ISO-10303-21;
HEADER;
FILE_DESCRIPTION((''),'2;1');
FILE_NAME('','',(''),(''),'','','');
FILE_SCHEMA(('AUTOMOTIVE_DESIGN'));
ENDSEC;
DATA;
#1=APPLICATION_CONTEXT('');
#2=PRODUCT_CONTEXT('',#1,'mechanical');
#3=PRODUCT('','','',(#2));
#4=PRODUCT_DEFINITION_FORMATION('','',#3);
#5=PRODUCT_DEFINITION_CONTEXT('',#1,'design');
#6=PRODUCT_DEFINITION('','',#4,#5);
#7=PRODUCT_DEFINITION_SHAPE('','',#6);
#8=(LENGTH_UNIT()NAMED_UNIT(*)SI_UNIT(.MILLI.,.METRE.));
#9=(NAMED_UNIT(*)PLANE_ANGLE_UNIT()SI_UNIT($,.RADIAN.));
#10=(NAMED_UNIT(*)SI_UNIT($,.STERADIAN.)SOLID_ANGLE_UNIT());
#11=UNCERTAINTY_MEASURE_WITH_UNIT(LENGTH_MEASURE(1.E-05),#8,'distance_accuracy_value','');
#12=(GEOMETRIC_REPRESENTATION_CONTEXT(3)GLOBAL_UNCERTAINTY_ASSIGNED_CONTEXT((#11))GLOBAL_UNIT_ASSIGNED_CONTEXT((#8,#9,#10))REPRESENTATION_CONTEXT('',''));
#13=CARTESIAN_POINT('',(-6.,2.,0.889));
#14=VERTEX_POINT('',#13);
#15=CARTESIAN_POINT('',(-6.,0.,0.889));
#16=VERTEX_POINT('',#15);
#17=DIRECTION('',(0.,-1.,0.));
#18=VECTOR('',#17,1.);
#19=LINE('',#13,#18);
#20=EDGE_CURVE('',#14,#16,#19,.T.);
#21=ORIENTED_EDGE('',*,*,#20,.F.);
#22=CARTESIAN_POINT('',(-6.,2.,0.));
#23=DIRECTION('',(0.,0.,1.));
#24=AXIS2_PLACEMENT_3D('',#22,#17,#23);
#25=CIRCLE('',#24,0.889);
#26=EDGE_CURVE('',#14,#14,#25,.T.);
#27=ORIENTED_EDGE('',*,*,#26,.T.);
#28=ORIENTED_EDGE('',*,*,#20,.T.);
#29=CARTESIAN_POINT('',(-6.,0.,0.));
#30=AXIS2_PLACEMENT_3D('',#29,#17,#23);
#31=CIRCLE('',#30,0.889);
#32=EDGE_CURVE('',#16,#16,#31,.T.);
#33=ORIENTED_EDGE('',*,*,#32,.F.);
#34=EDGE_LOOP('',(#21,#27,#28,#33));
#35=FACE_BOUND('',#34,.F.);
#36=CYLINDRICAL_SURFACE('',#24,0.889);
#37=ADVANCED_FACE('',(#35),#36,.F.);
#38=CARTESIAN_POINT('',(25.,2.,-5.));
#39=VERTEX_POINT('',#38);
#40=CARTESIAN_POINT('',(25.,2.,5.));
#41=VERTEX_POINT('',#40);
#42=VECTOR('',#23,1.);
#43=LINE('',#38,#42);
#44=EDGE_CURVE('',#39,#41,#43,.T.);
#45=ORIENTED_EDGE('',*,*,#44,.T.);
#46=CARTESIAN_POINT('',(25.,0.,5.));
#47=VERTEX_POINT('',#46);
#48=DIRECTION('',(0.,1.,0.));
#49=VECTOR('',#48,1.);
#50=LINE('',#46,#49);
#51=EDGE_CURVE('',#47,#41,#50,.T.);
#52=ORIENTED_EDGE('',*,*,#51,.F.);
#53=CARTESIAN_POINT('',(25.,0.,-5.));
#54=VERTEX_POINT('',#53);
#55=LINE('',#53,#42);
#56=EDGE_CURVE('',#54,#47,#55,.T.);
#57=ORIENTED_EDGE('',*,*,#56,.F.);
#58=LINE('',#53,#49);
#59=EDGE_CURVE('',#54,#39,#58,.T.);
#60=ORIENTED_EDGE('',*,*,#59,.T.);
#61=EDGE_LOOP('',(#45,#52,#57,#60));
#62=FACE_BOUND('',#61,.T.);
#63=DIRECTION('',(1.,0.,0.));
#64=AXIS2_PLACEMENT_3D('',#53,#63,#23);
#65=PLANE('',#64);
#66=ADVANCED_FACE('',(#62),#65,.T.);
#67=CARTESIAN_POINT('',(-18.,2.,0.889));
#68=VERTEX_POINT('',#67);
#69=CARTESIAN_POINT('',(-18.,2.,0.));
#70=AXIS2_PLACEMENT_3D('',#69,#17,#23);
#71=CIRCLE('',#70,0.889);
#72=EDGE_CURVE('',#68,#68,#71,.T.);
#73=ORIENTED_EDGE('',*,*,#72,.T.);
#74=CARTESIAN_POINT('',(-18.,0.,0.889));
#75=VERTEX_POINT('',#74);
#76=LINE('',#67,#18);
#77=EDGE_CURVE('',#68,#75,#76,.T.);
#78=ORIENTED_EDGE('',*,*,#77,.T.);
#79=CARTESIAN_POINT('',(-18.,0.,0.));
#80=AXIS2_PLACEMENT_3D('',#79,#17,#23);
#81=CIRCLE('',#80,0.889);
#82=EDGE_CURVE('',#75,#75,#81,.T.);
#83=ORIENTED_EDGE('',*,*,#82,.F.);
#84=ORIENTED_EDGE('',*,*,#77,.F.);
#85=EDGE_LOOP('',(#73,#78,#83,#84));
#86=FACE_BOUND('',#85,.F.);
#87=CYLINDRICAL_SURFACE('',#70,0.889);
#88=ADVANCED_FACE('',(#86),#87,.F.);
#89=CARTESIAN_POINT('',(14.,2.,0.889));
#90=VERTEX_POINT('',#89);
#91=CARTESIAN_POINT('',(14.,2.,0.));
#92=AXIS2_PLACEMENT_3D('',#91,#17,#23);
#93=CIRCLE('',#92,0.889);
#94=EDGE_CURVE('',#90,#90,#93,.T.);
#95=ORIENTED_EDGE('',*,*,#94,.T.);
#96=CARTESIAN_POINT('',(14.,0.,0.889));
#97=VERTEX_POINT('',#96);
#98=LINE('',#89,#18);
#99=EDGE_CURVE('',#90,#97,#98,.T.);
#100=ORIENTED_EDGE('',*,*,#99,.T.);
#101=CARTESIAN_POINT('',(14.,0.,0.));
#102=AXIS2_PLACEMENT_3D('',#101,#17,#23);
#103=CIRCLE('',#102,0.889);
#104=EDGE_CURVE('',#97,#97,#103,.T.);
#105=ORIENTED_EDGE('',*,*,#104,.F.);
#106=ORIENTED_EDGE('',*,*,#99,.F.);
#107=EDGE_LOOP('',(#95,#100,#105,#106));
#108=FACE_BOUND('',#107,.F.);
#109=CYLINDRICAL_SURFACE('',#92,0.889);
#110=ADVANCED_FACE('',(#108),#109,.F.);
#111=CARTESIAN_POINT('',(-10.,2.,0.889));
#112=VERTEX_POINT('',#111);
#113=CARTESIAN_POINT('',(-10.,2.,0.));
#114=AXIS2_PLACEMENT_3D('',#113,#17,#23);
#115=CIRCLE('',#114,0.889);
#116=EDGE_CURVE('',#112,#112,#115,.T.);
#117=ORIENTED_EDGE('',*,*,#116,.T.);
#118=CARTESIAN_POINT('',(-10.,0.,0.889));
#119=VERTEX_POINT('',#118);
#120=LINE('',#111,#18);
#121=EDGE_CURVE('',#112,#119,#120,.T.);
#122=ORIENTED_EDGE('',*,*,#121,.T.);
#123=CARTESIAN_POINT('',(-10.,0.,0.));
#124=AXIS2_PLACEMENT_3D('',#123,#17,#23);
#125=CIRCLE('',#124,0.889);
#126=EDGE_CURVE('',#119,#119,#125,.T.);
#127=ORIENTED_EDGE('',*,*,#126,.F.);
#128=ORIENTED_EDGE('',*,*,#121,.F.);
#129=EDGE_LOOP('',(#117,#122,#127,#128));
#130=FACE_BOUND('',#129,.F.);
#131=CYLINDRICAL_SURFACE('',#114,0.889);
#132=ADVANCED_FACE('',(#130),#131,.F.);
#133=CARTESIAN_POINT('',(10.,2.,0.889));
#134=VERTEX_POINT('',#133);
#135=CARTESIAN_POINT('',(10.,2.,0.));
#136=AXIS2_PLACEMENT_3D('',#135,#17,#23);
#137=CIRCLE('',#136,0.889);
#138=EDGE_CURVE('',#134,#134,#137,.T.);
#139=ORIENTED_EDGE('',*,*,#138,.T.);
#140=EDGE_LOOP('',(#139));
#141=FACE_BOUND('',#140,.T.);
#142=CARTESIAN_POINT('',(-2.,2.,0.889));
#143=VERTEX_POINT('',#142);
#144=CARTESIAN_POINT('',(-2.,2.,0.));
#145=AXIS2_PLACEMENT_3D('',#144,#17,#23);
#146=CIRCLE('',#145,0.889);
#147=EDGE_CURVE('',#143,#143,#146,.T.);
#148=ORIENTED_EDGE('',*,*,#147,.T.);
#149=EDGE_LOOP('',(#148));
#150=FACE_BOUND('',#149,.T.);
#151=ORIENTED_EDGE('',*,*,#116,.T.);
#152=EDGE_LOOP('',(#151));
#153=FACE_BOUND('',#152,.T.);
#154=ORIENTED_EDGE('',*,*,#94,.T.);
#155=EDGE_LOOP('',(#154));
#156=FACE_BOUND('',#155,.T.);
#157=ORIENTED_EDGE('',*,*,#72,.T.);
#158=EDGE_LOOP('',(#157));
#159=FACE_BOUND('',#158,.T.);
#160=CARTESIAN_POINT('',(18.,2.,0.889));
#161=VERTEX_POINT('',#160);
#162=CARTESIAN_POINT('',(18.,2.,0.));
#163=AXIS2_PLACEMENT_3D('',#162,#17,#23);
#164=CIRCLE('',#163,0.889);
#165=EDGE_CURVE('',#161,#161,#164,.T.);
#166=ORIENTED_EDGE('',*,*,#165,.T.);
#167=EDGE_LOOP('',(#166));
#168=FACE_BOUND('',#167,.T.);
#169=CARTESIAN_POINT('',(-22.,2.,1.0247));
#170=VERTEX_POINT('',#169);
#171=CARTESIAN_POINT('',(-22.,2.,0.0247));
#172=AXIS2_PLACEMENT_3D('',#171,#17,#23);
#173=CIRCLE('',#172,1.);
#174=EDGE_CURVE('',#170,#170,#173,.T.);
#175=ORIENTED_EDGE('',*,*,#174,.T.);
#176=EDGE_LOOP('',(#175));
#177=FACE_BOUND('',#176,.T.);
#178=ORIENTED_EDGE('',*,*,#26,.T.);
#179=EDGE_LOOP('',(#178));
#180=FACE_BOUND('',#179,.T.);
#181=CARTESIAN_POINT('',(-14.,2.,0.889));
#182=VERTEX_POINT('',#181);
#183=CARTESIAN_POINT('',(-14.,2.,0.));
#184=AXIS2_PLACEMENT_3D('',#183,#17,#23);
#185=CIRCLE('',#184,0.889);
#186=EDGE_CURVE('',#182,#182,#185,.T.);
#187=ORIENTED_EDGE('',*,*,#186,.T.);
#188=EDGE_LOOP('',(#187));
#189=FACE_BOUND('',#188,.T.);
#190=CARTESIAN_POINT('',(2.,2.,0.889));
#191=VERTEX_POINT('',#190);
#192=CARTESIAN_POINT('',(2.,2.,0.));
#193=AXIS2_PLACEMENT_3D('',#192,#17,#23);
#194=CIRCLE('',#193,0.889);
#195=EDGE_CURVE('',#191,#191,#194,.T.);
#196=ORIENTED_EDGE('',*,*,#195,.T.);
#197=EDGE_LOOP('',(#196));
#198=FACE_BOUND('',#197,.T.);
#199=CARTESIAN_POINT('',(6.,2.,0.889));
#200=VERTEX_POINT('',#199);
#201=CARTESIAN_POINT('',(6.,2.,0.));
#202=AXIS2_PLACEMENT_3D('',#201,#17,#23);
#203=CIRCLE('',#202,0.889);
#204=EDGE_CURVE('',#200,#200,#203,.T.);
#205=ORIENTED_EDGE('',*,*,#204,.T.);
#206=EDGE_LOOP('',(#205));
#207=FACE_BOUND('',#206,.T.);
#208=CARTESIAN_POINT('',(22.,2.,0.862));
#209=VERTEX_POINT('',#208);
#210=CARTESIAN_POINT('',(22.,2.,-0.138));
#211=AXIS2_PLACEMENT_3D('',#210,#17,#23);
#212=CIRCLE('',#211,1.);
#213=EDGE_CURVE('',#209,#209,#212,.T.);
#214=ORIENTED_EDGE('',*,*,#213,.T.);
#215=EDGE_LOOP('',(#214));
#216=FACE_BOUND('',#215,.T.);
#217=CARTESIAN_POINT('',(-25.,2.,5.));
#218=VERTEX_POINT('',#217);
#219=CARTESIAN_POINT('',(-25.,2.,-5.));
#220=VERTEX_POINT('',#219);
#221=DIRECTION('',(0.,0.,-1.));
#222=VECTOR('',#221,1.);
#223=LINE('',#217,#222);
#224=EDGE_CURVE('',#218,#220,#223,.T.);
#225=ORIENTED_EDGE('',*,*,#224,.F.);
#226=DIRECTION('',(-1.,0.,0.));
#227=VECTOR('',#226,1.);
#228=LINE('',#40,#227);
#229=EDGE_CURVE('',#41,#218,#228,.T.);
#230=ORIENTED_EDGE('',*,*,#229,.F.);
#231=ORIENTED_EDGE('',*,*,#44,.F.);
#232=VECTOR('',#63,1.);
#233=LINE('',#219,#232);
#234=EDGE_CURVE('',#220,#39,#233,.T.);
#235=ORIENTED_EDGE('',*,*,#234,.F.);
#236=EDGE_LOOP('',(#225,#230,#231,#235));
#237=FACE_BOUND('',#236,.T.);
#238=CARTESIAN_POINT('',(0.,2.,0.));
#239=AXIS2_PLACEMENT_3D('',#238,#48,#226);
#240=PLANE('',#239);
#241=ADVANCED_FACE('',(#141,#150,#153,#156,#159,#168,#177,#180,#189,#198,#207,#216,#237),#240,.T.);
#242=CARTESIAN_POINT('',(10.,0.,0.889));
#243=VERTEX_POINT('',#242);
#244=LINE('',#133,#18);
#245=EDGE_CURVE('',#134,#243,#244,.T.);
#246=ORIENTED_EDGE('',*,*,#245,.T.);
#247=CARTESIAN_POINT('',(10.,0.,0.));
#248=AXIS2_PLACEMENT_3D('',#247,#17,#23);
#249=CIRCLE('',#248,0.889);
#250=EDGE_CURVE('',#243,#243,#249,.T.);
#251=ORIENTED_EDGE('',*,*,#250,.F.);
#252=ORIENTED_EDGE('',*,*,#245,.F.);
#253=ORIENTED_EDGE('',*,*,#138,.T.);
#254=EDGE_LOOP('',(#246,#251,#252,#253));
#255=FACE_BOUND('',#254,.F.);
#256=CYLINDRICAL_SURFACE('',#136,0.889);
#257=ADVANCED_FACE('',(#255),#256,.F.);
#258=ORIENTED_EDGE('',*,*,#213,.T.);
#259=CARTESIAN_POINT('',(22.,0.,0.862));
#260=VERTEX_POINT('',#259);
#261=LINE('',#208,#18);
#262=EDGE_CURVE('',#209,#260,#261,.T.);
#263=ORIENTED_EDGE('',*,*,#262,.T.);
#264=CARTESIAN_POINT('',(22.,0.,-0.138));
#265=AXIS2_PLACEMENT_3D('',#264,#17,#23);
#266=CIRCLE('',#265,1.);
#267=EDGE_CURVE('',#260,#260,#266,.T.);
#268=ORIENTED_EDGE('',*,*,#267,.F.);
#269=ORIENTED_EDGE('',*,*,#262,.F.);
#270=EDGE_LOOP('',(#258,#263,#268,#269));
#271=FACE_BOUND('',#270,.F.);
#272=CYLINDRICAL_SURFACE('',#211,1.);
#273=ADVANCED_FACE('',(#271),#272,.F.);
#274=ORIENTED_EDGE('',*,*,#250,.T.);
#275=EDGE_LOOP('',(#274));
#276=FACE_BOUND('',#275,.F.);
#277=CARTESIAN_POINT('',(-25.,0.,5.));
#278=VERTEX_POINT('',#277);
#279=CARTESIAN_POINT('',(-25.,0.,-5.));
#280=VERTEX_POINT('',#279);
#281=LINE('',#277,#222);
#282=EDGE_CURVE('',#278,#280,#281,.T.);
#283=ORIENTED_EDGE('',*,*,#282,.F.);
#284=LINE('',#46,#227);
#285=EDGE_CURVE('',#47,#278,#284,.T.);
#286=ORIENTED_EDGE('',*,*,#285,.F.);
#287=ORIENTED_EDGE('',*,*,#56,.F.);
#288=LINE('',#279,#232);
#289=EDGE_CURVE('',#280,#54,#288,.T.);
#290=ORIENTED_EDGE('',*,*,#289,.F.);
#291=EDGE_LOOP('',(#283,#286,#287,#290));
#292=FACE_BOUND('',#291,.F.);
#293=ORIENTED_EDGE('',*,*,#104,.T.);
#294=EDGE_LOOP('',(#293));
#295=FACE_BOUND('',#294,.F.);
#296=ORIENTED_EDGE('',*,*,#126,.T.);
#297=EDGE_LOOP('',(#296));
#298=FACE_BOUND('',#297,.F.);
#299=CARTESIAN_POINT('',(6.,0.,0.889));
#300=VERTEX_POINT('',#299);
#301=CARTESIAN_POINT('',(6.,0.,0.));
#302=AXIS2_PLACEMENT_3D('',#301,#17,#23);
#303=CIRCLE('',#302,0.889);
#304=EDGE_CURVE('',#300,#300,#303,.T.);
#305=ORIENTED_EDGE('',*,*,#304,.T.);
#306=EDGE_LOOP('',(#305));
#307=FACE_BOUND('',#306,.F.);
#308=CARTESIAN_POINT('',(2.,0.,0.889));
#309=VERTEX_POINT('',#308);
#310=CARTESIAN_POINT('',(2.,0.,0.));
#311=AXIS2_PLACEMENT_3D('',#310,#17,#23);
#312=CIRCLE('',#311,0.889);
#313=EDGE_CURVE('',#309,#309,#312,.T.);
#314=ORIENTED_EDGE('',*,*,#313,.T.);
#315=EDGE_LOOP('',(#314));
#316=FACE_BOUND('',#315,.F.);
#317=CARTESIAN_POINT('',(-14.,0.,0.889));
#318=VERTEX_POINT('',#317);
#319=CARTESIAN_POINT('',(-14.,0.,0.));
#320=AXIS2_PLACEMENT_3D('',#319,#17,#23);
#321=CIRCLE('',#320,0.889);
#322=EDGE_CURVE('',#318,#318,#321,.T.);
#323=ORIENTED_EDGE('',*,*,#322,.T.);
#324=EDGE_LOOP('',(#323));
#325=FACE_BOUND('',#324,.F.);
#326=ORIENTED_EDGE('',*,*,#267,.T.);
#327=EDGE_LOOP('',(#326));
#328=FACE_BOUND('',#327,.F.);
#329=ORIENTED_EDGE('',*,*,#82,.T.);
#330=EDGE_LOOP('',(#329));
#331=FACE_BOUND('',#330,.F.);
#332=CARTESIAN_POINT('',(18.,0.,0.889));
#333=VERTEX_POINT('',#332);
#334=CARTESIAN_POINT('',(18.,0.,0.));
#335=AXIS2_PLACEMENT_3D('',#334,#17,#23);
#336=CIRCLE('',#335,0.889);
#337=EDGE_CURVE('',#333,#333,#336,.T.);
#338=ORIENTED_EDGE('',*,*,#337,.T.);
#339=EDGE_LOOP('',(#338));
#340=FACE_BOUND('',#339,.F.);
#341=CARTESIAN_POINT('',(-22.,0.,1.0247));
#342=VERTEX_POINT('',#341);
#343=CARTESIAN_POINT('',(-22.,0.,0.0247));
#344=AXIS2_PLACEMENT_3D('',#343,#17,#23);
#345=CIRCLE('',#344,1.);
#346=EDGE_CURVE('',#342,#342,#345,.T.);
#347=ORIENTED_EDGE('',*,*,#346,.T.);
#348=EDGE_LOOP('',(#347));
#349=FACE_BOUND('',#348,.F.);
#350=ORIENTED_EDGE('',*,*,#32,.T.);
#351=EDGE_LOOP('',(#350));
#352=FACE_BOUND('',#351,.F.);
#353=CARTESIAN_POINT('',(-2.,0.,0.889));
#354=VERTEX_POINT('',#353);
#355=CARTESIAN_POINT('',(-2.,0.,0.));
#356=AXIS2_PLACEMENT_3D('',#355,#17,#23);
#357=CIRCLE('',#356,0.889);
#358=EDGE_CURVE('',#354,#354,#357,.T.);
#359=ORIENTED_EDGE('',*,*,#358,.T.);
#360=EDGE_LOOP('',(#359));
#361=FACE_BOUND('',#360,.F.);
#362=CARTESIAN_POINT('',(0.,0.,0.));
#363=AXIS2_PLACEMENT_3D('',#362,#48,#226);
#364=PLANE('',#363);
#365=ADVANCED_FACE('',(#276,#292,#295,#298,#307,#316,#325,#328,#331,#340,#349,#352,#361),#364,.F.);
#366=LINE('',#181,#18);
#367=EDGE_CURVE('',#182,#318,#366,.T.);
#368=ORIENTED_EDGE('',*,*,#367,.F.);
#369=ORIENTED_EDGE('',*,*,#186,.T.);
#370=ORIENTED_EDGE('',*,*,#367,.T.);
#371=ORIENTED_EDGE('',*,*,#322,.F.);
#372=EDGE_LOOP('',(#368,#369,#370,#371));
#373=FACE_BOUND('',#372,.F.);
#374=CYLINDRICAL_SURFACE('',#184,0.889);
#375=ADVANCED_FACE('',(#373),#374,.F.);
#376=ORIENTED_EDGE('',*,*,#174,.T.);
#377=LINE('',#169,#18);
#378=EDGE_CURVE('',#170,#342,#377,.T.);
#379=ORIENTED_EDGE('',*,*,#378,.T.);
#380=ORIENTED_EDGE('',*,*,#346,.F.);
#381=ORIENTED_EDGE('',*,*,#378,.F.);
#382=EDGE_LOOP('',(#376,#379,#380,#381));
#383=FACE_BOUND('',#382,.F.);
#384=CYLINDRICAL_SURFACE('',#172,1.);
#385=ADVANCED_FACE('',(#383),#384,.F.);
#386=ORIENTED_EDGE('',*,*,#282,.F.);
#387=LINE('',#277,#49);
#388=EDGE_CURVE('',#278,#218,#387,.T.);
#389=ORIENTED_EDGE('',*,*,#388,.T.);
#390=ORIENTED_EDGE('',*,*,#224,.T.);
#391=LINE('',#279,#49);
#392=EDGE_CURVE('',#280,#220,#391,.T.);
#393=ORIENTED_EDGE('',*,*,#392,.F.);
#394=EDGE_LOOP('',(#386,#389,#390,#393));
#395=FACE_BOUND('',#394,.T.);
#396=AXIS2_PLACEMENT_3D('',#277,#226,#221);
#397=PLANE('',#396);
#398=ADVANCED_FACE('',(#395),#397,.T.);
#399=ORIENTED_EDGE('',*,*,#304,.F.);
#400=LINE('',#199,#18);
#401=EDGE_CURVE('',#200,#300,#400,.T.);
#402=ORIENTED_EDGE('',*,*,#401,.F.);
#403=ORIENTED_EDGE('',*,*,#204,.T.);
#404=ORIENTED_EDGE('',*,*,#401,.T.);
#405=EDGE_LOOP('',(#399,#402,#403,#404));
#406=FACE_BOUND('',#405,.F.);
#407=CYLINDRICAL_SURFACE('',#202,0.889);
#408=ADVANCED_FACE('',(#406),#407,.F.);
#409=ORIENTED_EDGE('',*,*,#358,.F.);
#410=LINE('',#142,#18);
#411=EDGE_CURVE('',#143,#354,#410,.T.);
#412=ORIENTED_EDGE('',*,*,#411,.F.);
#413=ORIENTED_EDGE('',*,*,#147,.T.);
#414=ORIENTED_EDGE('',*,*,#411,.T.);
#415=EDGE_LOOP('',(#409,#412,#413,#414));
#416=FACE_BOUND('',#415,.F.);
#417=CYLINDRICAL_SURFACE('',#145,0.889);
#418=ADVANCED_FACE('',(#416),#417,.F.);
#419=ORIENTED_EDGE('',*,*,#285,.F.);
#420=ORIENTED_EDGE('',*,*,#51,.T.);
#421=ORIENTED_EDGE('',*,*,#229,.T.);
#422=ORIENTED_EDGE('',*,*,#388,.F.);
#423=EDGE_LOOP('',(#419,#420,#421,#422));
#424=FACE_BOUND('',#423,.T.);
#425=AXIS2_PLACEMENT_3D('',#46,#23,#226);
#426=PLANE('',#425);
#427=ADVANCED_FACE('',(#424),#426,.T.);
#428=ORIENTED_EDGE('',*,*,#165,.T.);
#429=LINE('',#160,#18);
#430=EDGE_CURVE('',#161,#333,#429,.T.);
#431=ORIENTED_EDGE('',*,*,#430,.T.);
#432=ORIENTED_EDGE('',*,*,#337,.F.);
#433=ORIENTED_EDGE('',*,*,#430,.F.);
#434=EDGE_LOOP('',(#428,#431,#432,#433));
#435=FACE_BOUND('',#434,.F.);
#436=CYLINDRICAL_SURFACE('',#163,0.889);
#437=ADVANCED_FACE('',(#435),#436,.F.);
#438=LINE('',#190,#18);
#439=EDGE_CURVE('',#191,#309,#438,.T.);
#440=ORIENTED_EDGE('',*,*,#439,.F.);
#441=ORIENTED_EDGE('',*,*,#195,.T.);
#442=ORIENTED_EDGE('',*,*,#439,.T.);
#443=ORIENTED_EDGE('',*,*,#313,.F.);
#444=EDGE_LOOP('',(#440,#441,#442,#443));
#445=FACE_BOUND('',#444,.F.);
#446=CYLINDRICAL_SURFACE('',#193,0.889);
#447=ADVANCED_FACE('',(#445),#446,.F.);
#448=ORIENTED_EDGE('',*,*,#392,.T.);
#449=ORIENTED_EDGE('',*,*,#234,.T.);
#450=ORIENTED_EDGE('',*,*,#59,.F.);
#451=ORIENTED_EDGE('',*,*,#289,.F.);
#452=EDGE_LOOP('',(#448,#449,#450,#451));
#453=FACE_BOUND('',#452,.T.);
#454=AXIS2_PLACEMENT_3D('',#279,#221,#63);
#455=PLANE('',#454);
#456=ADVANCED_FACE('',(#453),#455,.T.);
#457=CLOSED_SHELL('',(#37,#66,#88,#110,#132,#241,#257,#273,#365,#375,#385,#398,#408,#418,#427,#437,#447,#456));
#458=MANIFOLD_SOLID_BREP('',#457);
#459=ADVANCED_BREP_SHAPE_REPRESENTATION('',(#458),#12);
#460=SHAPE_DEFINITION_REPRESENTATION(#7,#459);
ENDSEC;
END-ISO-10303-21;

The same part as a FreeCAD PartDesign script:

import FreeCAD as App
import Part
import Sketcher
from FreeCAD import Vector

doc = App.newDocument("Part")
body = doc.addObject("PartDesign::Body", "Body")

# Sketch on XZ plane
sketch1 = body.newObject("Sketcher::SketchObject", "Sketch")
sketch1.AttachmentSupport = (doc.getObject("XZ_Plane"), [""])
sketch1.MapMode = "FlatFace"
sketch1.addGeometry([
    Part.LineSegment(Vector(25, -5, 0), Vector(-25, -5, 0)),
    Part.LineSegment(Vector(-25, -5, 0), Vector(-25, 5, 0)),
    Part.LineSegment(Vector(-25, 5, 0), Vector(25, 5, 0)),
    Part.LineSegment(Vector(25, 5, 0), Vector(25, -5, 0)),
], False)
sketch1.addConstraint([
    Sketcher.Constraint("Coincident", 0, 2, 1, 1),
    Sketcher.Constraint("Coincident", 1, 2, 2, 1),
    Sketcher.Constraint("Coincident", 2, 2, 3, 1),
    Sketcher.Constraint("Coincident", 3, 2, 0, 1),
    Sketcher.Constraint("Horizontal", 0),
    Sketcher.Constraint("Vertical", 1),
    Sketcher.Constraint("Horizontal", 2),
    Sketcher.Constraint("Vertical", 3),
    Sketcher.Constraint("Symmetric", 0, 2, 2, 2, -1, 1),
    Sketcher.Constraint("DistanceX", 0, 2, 0, 1, 50.0),
    Sketcher.Constraint("DistanceY", 1, 1, 1, 2, 10.0),
])
pad1 = body.newObject("PartDesign::Pad", "Pad")
pad1.Profile = sketch1
pad1.Length = 2
pad1.Reversed = True

# Sketch on XZ plane
sketch2 = body.newObject("Sketcher::SketchObject", "Sketch001")
sketch2.AttachmentSupport = (doc.getObject("XZ_Plane"), [""])
sketch2.MapMode = "FlatFace"
sketch2.AttachmentOffset = App.Placement(Vector(0, 0, -2), App.Rotation())
sketch2.addGeometry([
    Part.Circle(Vector(-18, 0, 0), Vector(0, 0, 1), 0.889),
    Part.Circle(Vector(18, 0, 0), Vector(0, 0, 1), 0.889),
], False)
sketch2.addConstraint([
    Sketcher.Constraint("Equal", 0, 1),
    Sketcher.Constraint("Symmetric", 0, 3, 1, 3, -1, 1),
    Sketcher.Constraint("PointOnObject", 0, 3, -1),
    Sketcher.Constraint("Diameter", 0, 1.778),
    Sketcher.Constraint("DistanceX", 0, 3, -1, 1, 18.0),
])
doc.recompute()
hole = body.newObject("PartDesign::Hole", "Hole")
hole.Profile = sketch2
hole.ThreadType = "None"
hole.Diameter = 1.778
hole.DepthType = "ThroughAll"
hole.Reversed = True

# Sketch on XZ plane
sketch3 = body.newObject("Sketcher::SketchObject", "Sketch002")
sketch3.AttachmentSupport = (doc.getObject("XZ_Plane"), [""])
sketch3.MapMode = "FlatFace"
sketch3.AttachmentOffset = App.Placement(Vector(0, 0, -2), App.Rotation())
sketch3.addGeometry([
    Part.Circle(Vector(14, 0, 0), Vector(0, 0, 1), 0.889),  # 0
    Part.Circle(Vector(-14, 0, 0), Vector(0, 0, 1), 0.889),  # 1
    Part.Circle(Vector(-10, 0, 0), Vector(0, 0, 1), 0.889),  # 2
    Part.Circle(Vector(-6, 0, 0), Vector(0, 0, 1), 0.889),  # 3
    Part.Circle(Vector(-2, 0, 0), Vector(0, 0, 1), 0.889),  # 4
    Part.Circle(Vector(2, 0, 0), Vector(0, 0, 1), 0.889),  # 5
    Part.Circle(Vector(6, 0, 0), Vector(0, 0, 1), 0.889),  # 6
    Part.Circle(Vector(10, 0, 0), Vector(0, 0, 1), 0.889),  # 7
], False)
sketch3.addConstraint([
    Sketcher.Constraint("Equal", 0, 1),
    Sketcher.Constraint("Equal", 1, 2),
    Sketcher.Constraint("Equal", 2, 3),
    Sketcher.Constraint("Equal", 3, 4),
    Sketcher.Constraint("Equal", 4, 5),
    Sketcher.Constraint("Equal", 5, 6),
    Sketcher.Constraint("Equal", 6, 7),
    Sketcher.Constraint("Symmetric", 0, 3, 1, 3, -1, 1),
    Sketcher.Constraint("Symmetric", 4, 3, 5, 3, -1, 1),
    Sketcher.Constraint("Symmetric", 3, 3, 6, 3, -1, 1),
    Sketcher.Constraint("Symmetric", 2, 3, 7, 3, -1, 1),
    Sketcher.Constraint("PointOnObject", 0, 3, -1),
    Sketcher.Constraint("PointOnObject", 2, 3, -1),
    Sketcher.Constraint("PointOnObject", 3, 3, -1),
    Sketcher.Constraint("PointOnObject", 4, 3, -1),
    Sketcher.Constraint("Diameter", 0, 1.778),
    Sketcher.Constraint("DistanceX", -1, 1, 0, 3, 14.0),
    Sketcher.Constraint("DistanceX", 2, 3, -1, 1, 10.0),
    Sketcher.Constraint("DistanceX", 3, 3, -1, 1, 6.0),
    Sketcher.Constraint("DistanceX", 4, 3, -1, 1, 2.0),
])
doc.recompute()
hole2 = body.newObject("PartDesign::Hole", "Hole001")
hole2.Profile = sketch3
hole2.ThreadType = "None"
hole2.Diameter = 1.778
hole2.DepthType = "ThroughAll"
hole2.Reversed = True

# Sketch on XZ plane
sketch4 = body.newObject("Sketcher::SketchObject", "Sketch003")
sketch4.AttachmentSupport = (doc.getObject("XZ_Plane"), [""])
sketch4.MapMode = "FlatFace"
sketch4.AttachmentOffset = App.Placement(Vector(0, 0, -2), App.Rotation())
sketch4.addGeometry([
    Part.Circle(Vector(-22, 0.0247, 0), Vector(0, 0, 1), 1),
    Part.Circle(Vector(22, -0.138, 0), Vector(0, 0, 1), 1),
], False)
sketch4.addConstraint([
    Sketcher.Constraint("Equal", 0, 1),
    Sketcher.Constraint("Diameter", 0, 2.0),
    Sketcher.Constraint("DistanceX", 0, 3, -1, 1, 22.0),
    Sketcher.Constraint("DistanceX", -1, 1, 1, 3, 22.0),
    Sketcher.Constraint("DistanceY", 1, 3, -1, 1, 0.138),
    Sketcher.Constraint("DistanceY", -1, 1, 0, 3, 0.0247),
])
doc.recompute()
hole3 = body.newObject("PartDesign::Hole", "Hole002")
hole3.Profile = sketch4
hole3.ThreadType = "None"
hole3.Diameter = 2
hole3.DepthType = "ThroughAll"
hole3.Reversed = True

doc.recompute()
